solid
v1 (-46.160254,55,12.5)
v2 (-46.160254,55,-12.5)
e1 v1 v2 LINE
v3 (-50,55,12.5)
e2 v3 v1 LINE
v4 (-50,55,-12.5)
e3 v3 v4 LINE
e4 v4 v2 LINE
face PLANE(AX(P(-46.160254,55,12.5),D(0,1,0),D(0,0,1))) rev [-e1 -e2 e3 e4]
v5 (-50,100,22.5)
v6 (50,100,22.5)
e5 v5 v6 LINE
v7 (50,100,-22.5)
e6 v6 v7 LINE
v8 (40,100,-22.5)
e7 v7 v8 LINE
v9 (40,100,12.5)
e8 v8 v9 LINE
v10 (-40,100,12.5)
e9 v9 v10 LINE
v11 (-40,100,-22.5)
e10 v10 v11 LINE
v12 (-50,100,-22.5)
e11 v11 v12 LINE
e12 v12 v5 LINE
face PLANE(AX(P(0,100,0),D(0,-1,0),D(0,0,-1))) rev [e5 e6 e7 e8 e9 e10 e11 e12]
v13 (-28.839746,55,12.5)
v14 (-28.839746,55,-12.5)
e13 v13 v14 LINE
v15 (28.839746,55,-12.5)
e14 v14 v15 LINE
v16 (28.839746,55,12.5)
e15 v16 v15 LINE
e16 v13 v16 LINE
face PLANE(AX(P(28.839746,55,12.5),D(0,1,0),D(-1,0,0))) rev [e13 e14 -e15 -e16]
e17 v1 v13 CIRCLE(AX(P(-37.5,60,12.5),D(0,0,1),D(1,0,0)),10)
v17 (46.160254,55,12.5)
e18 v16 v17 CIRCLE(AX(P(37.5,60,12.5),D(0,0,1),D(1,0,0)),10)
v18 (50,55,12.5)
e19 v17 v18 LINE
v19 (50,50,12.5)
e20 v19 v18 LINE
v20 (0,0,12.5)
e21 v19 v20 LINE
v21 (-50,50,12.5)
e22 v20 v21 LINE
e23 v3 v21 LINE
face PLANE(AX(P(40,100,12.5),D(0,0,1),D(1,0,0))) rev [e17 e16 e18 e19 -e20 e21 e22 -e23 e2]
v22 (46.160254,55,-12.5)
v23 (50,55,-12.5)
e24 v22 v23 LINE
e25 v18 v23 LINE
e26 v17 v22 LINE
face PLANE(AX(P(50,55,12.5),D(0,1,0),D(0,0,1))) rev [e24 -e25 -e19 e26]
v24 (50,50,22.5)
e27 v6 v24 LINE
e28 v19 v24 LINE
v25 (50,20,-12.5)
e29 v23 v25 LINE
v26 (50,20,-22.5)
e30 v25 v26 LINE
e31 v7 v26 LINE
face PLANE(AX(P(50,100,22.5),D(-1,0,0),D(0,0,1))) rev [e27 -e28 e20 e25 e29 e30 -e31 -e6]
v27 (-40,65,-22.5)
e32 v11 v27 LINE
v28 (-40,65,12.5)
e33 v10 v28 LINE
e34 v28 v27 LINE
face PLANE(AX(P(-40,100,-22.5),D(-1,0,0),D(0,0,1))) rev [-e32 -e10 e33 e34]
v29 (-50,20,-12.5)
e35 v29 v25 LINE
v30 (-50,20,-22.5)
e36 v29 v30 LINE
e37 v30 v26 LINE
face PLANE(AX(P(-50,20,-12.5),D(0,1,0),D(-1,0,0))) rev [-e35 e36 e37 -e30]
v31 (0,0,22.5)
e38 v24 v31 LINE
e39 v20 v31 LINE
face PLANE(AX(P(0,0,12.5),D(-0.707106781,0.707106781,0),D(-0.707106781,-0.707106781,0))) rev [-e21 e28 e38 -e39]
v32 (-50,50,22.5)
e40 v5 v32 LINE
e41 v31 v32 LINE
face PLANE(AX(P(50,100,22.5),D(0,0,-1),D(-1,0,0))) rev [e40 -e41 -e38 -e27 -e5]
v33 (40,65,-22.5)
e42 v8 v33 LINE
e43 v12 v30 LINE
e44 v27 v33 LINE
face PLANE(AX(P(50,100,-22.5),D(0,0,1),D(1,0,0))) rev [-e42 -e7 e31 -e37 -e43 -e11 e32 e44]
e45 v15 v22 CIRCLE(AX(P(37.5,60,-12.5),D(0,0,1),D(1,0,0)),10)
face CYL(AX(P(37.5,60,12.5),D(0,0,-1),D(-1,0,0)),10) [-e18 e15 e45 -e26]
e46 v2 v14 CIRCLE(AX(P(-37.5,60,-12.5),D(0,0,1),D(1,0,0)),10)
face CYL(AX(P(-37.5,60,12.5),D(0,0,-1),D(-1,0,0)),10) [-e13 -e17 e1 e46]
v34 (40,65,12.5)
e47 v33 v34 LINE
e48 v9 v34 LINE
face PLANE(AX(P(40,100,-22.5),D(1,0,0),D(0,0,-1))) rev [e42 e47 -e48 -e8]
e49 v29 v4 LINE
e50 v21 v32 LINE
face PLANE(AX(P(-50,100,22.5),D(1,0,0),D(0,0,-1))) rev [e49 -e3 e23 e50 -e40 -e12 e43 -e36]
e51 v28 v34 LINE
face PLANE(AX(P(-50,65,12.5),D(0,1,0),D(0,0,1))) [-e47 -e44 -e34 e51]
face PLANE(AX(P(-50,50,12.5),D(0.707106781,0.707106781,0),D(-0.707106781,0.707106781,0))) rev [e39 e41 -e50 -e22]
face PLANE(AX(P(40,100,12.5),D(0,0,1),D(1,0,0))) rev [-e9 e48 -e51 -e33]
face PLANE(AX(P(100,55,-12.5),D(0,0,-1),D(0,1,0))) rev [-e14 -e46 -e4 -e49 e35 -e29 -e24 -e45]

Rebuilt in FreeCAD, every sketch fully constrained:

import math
import FreeCAD as App
import Part
import Sketcher
from FreeCAD import Vector
Q = App.Units.Quantity


def add_polygon(sketch, points):
    """Adds a closed chain of lines whose ends are joined by coincident constraints."""
    first, n = sketch.GeometryCount, len(points)
    for a, b in zip(points, points[1:] + points[:1]):
        sketch.addGeometry(Part.LineSegment(App.Vector(*a, 0), App.Vector(*b, 0)), False)
    for i in range(n):
        sketch.addConstraint(Sketcher.Constraint("Coincident", first + i, 2, first + (i + 1) % n, 1))

doc = App.newDocument("Part")
body = doc.addObject("PartDesign::Body", "Body")

# Sketch on XZ plane
sketch1 = doc.addObject("Sketcher::SketchObject", "Sketch")
body.addObject(sketch1)
sketch1.AttachmentSupport = (doc.XZ_Plane, [""])
sketch1.MapMode = "FlatFace"
add_polygon(sketch1, [(-40, 12), (-40, -22), (-50, -22), (-50, 22), (50, 22), (50, -22), (40, -22), (40, 12)])  # lines 0-7
sketch1.addConstraint([
    Sketcher.Constraint("Vertical", 0),
    Sketcher.Constraint("Horizontal", 1),
    Sketcher.Constraint("Vertical", 2),
    Sketcher.Constraint("Horizontal", 3),
    Sketcher.Constraint("Vertical", 4),
    Sketcher.Constraint("Horizontal", 5),
    Sketcher.Constraint("Vertical", 6),
    Sketcher.Constraint("Horizontal", 7),
    Sketcher.Constraint("Symmetric", 1, 2, 3, 2, -1, 1),
    Sketcher.Constraint("Symmetric", 0, 2, 5, 2, -2),
    Sketcher.Constraint("DistanceX", 1, 2, 1, 1, Q("10 mm")),
    Sketcher.Constraint("DistanceX", 3, 1, 3, 2, Q("100 mm")),
    Sketcher.Constraint("DistanceY", 0, 2, 0, 1, Q("35 mm")),
    Sketcher.Constraint("DistanceY", 2, 1, 2, 2, Q("45 mm")),
])
pad1 = doc.addObject("PartDesign::Pad", "Pad")
body.addObject(pad1)
pad1.Profile = sketch1
pad1.Length = 100
pad1.Reversed = True

# Sketch on YZ plane
sketch2 = doc.addObject("Sketcher::SketchObject", "Sketch001")
body.addObject(sketch2)
sketch2.AttachmentSupport = (doc.YZ_Plane, [""])
sketch2.MapMode = "FlatFace"
add_polygon(sketch2, [(55, 12), (0, 12), (0, -12), (55, -12)])  # lines 0-3
sketch2.addConstraint([
    Sketcher.Constraint("Horizontal", 0),
    Sketcher.Constraint("Vertical", 1),
    Sketcher.Constraint("Horizontal", 2),
    Sketcher.Constraint("Vertical", 3),
    Sketcher.Constraint("Symmetric", 0, 2, 1, 2, -1, 1),
    Sketcher.Constraint("DistanceX", 0, 2, 0, 1, Q("55 mm")),
    Sketcher.Constraint("DistanceY", 1, 2, 1, 1, Q("25 mm")),
])
pocket1 = doc.addObject("PartDesign::Pocket", "Pocket")
body.addObject(pocket1)
pocket1.Profile = sketch2
pocket1.Type = "ThroughAll"
pocket1.Midplane = True

# Sketch on XY plane
sketch3 = doc.addObject("Sketcher::SketchObject", "Sketch002")
body.addObject(sketch3)
sketch3.AttachmentSupport = (doc.XY_Plane, [""])
sketch3.MapMode = "FlatFace"
sketch3.AttachmentOffset = App.Placement(Vector(0, 0, 22.5), App.Rotation())
add_polygon(sketch3, [(0, 0), (-50, 50), (-50, 0)])  # lines 0-2
sketch3.addConstraint([
    Sketcher.Constraint("Vertical", 1),
    Sketcher.Constraint("Horizontal", 2),
    Sketcher.Constraint("Coincident", 2, 2, -1, 1),
    Sketcher.Constraint("Equal", 2, 1),
    Sketcher.Constraint("DistanceX", 2, 1, 2, 2, Q("50 mm")),
])
pocket2 = doc.addObject("PartDesign::Pocket", "Pocket001")
body.addObject(pocket2)
pocket2.Profile = sketch3
pocket2.Length = 10

# Sketch on XY plane
sketch4 = doc.addObject("Sketcher::SketchObject", "Sketch003")
body.addObject(sketch4)
sketch4.AttachmentSupport = (doc.XY_Plane, [""])
sketch4.MapMode = "FlatFace"
sketch4.AttachmentOffset = App.Placement(Vector(0, 0, 22.5), App.Rotation())
add_polygon(sketch4, [(50, 50), (0, 0), (50, 0)])  # lines 0-2
sketch4.addConstraint([
    Sketcher.Constraint("Horizontal", 1),
    Sketcher.Constraint("Vertical", 2),
    Sketcher.Constraint("Coincident", 0, 2, -1, 1),
    Sketcher.Constraint("Equal", 1, 2),
    Sketcher.Constraint("DistanceX", 1, 1, 1, 2, Q("50 mm")),
])
pocket3 = doc.addObject("PartDesign::Pocket", "Pocket002")
body.addObject(pocket3)
pocket3.Profile = sketch4
pocket3.Length = 10
body2 = doc.addObject("PartDesign::Body", "Body001")

# Sketch on XY plane
sketch5 = doc.addObject("Sketcher::SketchObject", "Sketch004")
body2.addObject(sketch5)
sketch5.AttachmentSupport = (doc.getObject("XY_Plane001"), [""])
sketch5.MapMode = "FlatFace"
sketch5.AttachmentOffset = App.Placement(Vector(0, 0, -22.5), App.Rotation())
add_polygon(sketch5, [(40, 65), (40, 0), (-40, 0), (-40, 65)])  # lines 0-3
sketch5.addConstraint([
    Sketcher.Constraint("Vertical", 0),
    Sketcher.Constraint("Horizontal", 1),
    Sketcher.Constraint("Vertical", 2),
    Sketcher.Constraint("Horizontal", 3),
    Sketcher.Constraint("Symmetric", 0, 2, 1, 2, -1, 1),
    Sketcher.Constraint("DistanceX", 1, 2, 1, 1, Q("80 mm")),
    Sketcher.Constraint("DistanceY", 0, 2, 0, 1, Q("65 mm")),
])
pad2 = doc.addObject("PartDesign::Pad", "Pad001")
body2.addObject(pad2)
pad2.Profile = sketch5
pad2.Length = 10
body3 = doc.addObject("PartDesign::Body", "Body002")

# Sketch on XY plane
sketch6 = doc.addObject("Sketcher::SketchObject", "Sketch005")
body3.addObject(sketch6)
sketch6.AttachmentSupport = (doc.getObject("XY_Plane002"), [""])
sketch6.MapMode = "FlatFace"
sketch6.AttachmentOffset = App.Placement(Vector(0, 0, -22.5), App.Rotation())
add_polygon(sketch6, [(50, 20), (50, 0), (-50, 0), (-50, 20)])  # lines 0-3
sketch6.addConstraint([
    Sketcher.Constraint("Vertical", 0),
    Sketcher.Constraint("Horizontal", 1),
    Sketcher.Constraint("Vertical", 2),
    Sketcher.Constraint("Horizontal", 3),
    Sketcher.Constraint("Symmetric", 0, 2, 1, 2, -1, 1),
    Sketcher.Constraint("DistanceX", 1, 2, 1, 1, Q("100 mm")),
    Sketcher.Constraint("DistanceY", 0, 2, 0, 1, Q("20 mm")),
])
pad3 = doc.addObject("PartDesign::Pad", "Pad002")
body3.addObject(pad3)
pad3.Profile = sketch6
pad3.Length = 10
doc.recompute()

body4 = doc.addObject("PartDesign::Body", "Body003")
body4.BaseFeature = body3
boolean = doc.addObject("PartDesign::Boolean", "Boolean")
body.addObject(boolean)
boolean.Type = "Cut"
boolean.addObjects([body4])
doc.recompute()

boolean2 = doc.addObject("PartDesign::Boolean", "Boolean001")
body2.addObject(boolean2)
boolean2.Type = "Cut"
boolean2.addObjects([body3])
doc.recompute()

boolean3 = doc.addObject("PartDesign::Boolean", "Boolean002")
body.addObject(boolean3)
boolean3.Type = "Fuse"
boolean3.addObjects([body2])

# Sketch on YZ plane
sketch7 = doc.addObject("Sketcher::SketchObject", "Sketch006")
body.addObject(sketch7)
sketch7.AttachmentSupport = (doc.YZ_Plane, [""])
sketch7.MapMode = "FlatFace"
sketch7.AttachmentOffset = App.Placement(Vector(0, 0, -40), App.Rotation())
add_polygon(sketch7, [(65, 12), (50, 12), (50, -12), (65, -12)])  # lines 0-3
sketch7.addConstraint([
    Sketcher.Constraint("Horizontal", 0),
    Sketcher.Constraint("Vertical", 1),
    Sketcher.Constraint("Horizontal", 2),
    Sketcher.Constraint("Vertical", 3),
    Sketcher.Constraint("DistanceX", 0, 2, 0, 1, Q("15 mm")),
    Sketcher.Constraint("DistanceY", 1, 2, 1, 1, Q("25 mm")),
    Sketcher.Constraint("DistanceX", -1, 1, 0, 2, Q("50 mm")),
    Sketcher.Constraint("DistanceY", -1, 1, 0, 2, Q("12.5 mm")),
])
pad4 = doc.addObject("PartDesign::Pad", "Pad003")
body.addObject(pad4)
pad4.Profile = sketch7
pad4.Type = "TwoLengths"
pad4.Length = 90
pad4.Length2 = 10

# Sketch on XY plane
sketch8 = doc.addObject("Sketcher::SketchObject", "Sketch007")
body.addObject(sketch8)
sketch8.AttachmentSupport = (doc.XY_Plane, [""])
sketch8.MapMode = "FlatFace"
add_polygon(sketch8, [(-65.8, 115.8), (-65.8, -15.8), (65.8, -15.8), (65.8, 115.8)])  # lines 0-3
sketch8.addGeometry(Part.LineSegment(Vector(50, 100, 0), Vector(50, 55, 0)), False)  # 4
sketch8.addGeometry(Part.LineSegment(Vector(50, 55, 0), Vector(46.2, 55, 0)), False)  # 5
sketch8.addGeometry(Part.ArcOfCircle(Part.Circle(Vector(37.5, 60, 0), Vector(0, 0, 1), 10), math.radians(-150), math.radians(-30)), False)  # 6
sketch8.addGeometry(Part.LineSegment(Vector(28.8, 55, 0), Vector(-28.8, 55, 0)), False)  # 7
sketch8.addGeometry(Part.ArcOfCircle(Part.Circle(Vector(-37.5, 60, 0), Vector(0, 0, 1), 10), math.radians(-150), math.radians(-30)), False)  # 8
sketch8.addGeometry(Part.LineSegment(Vector(-46.2, 55, 0), Vector(-50, 55, 0)), False)  # 9
sketch8.addGeometry(Part.LineSegment(Vector(-50, 55, 0), Vector(-50, 100, 0)), False)  # 10
sketch8.addGeometry(Part.LineSegment(Vector(-50, 100, 0), Vector(-40, 100, 0)), False)  # 11
sketch8.addGeometry(Part.LineSegment(Vector(-40, 100, 0), Vector(-40, 65, 0)), False)  # 12
sketch8.addGeometry(Part.LineSegment(Vector(-40, 65, 0), Vector(40, 65, 0)), False)  # 13
sketch8.addGeometry(Part.LineSegment(Vector(40, 65, 0), Vector(40, 100, 0)), False)  # 14
sketch8.addGeometry(Part.LineSegment(Vector(40, 100, 0), Vector(50, 100, 0)), False)  # 15
sketch8.addConstraint([
    Sketcher.Constraint("Coincident", 4, 2, 5, 1),
    Sketcher.Constraint("Coincident", 5, 2, 6, 2),
    Sketcher.Constraint("Coincident", 6, 1, 7, 1),
    Sketcher.Constraint("Coincident", 7, 2, 8, 2),
    Sketcher.Constraint("Coincident", 8, 1, 9, 1),
    Sketcher.Constraint("Coincident", 9, 2, 10, 1),
    Sketcher.Constraint("Coincident", 10, 2, 11, 1),
    Sketcher.Constraint("Coincident", 11, 2, 12, 1),
    Sketcher.Constraint("Coincident", 12, 2, 13, 1),
    Sketcher.Constraint("Coincident", 13, 2, 14, 1),
    Sketcher.Constraint("Coincident", 14, 2, 15, 1),
    Sketcher.Constraint("Coincident", 15, 2, 4, 1),
    Sketcher.Constraint("Vertical", 0),
    Sketcher.Constraint("Horizontal", 1),
    Sketcher.Constraint("Vertical", 2),
    Sketcher.Constraint("Horizontal", 3),
    Sketcher.Constraint("Vertical", 4),
    Sketcher.Constraint("Horizontal", 5),
    Sketcher.Constraint("Horizontal", 7),
    Sketcher.Constraint("Horizontal", 9),
    Sketcher.Constraint("Vertical", 10),
    Sketcher.Constraint("Horizontal", 11),
    Sketcher.Constraint("Vertical", 12),
    Sketcher.Constraint("Horizontal", 13),
    Sketcher.Constraint("Vertical", 14),
    Sketcher.Constraint("Horizontal", 15),
    Sketcher.Constraint("Equal", 6, 8),
    Sketcher.Constraint("Symmetric", 6, 3, 8, 3, -2),
    Sketcher.Constraint("Symmetric", 4, 2, 9, 2, -2),
    Sketcher.Constraint("Symmetric", 11, 2, 14, 2, -2),
    Sketcher.Constraint("Horizontal", 5, 2, 6, 1),
    Sketcher.Constraint("Equal", 3, 0),
    Sketcher.Constraint("Radius", 6, Q("10 mm")),
    Sketcher.Constraint("DistanceX", 11, 1, 11, 2, Q("10 mm")),
    Sketcher.Constraint("DistanceX", 13, 1, 13, 2, Q("80 mm")),
    Sketcher.Constraint("DistanceY", 4, 2, 4, 1, Q("45 mm")),
    Sketcher.Constraint("DistanceY", 12, 2, 12, 1, Q("35 mm")),
    Sketcher.Constraint("DistanceY", -1, 1, 6, 3, Q("60 mm")),
    Sketcher.Constraint("DistanceY", -1, 1, 4, 2, Q("55 mm")),
    Sketcher.Constraint("DistanceX", 8, 3, 6, 3, Q("75 mm")),
    Sketcher.Constraint("DistanceX", 1, 1, 1, 2, Q("131.682 mm")),
    Sketcher.Constraint("DistanceX", 0, 2, -1, 1, Q("65.841 mm")),
    Sketcher.Constraint("DistanceY", 0, 2, -1, 1, Q("15.841 mm")),
])
pocket4 = doc.addObject("PartDesign::Pocket", "Pocket003")
body.addObject(pocket4)
pocket4.Profile = sketch8
pocket4.Type = "TwoLengths"
pocket4.Length = 12.5
pocket4.Length2 = 12.5
pocket4.Reversed = True

doc.recompute()
